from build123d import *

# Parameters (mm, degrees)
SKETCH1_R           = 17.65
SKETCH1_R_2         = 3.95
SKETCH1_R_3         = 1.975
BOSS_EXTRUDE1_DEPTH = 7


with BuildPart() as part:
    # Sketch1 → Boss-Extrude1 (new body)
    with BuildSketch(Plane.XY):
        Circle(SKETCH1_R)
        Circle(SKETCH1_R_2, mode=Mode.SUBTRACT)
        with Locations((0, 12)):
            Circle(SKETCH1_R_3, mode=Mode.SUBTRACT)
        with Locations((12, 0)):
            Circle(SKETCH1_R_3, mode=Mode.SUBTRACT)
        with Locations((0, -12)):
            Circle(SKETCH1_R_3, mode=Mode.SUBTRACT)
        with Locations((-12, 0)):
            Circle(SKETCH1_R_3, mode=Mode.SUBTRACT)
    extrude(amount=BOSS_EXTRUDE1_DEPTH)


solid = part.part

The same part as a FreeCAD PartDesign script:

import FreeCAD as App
import Part
import Sketcher

V = App.Vector

doc = App.newDocument("Part")
params = doc.addObject("Spreadsheet::Sheet", "Params")
for row, (alias, value) in enumerate([
    ("sketch1_diameter", "35.3 mm"),
    ("sketch1_diameter2", "7.9 mm"),
    ("sketch1_diameter3", "3.95 mm"),
    ("pad1_length", "7 mm"),
], start=1):
    params.set(f"A{row}", alias)
    params.set(f"B{row}", "=" + value)
    params.setAlias(f"B{row}", alias)

body = doc.addObject("PartDesign::Body", "Body")

# Sketch on XY plane
sketch1 = body.newObject("Sketcher::SketchObject", "Sketch")
sketch1.AttachmentSupport = (doc.getObject("XY_Plane"), [""])
sketch1.MapMode = "FlatFace"
sketch1.addGeometry([
    Part.Circle(V(0, 0, 0), V(0, 0, 1), 17.65),  # 0
    Part.Circle(V(0, -12, 0), V(0, 0, 1), 1.975),  # 1
    Part.Circle(V(-12, 0, 0), V(0, 0, 1), 1.975),  # 2
    Part.Circle(V(0, 0, 0), V(0, 0, 1), 3.95),  # 3
    Part.Circle(V(12, 0, 0), V(0, 0, 1), 1.975),  # 4
    Part.Circle(V(0, 12, 0), V(0, 0, 1), 1.975),  # 5
], False)
sketch1.addConstraint([
    Sketcher.Constraint("Coincident", 0, 3, -1, 1),
    Sketcher.Constraint("Coincident", 3, 3, -1, 1),
    Sketcher.Constraint("Equal", 1, 2),
    Sketcher.Constraint("Equal", 2, 4),
    Sketcher.Constraint("Equal", 4, 5),
    Sketcher.Constraint("Symmetric", 2, 3, 4, 3, -1, 1),
    Sketcher.Constraint("Symmetric", 1, 3, 5, 3, -1, 1),
    Sketcher.Constraint("PointOnObject", 1, 3, -2),
    Sketcher.Constraint("PointOnObject", 2, 3, -1),
    Sketcher.Constraint("Diameter", 0, 35.3),
    Sketcher.Constraint("Diameter", 3, 7.9),
    Sketcher.Constraint("Diameter", 1, 3.95),
    Sketcher.Constraint("DistanceY", 1, 3, -1, 1, 12.0),
    Sketcher.Constraint("DistanceX", 2, 3, -1, 1, 12.0),
])
sketch1.setExpression("Constraints[9]", "Params.sketch1_diameter")
sketch1.setExpression("Constraints[10]", "Params.sketch1_diameter2")
sketch1.setExpression("Constraints[11]", "Params.sketch1_diameter3")
pad1 = body.newObject("PartDesign::Pad", "Pad")
pad1.Profile = sketch1
pad1.setExpression("Length", "Params.pad1_length")

doc.recompute()
